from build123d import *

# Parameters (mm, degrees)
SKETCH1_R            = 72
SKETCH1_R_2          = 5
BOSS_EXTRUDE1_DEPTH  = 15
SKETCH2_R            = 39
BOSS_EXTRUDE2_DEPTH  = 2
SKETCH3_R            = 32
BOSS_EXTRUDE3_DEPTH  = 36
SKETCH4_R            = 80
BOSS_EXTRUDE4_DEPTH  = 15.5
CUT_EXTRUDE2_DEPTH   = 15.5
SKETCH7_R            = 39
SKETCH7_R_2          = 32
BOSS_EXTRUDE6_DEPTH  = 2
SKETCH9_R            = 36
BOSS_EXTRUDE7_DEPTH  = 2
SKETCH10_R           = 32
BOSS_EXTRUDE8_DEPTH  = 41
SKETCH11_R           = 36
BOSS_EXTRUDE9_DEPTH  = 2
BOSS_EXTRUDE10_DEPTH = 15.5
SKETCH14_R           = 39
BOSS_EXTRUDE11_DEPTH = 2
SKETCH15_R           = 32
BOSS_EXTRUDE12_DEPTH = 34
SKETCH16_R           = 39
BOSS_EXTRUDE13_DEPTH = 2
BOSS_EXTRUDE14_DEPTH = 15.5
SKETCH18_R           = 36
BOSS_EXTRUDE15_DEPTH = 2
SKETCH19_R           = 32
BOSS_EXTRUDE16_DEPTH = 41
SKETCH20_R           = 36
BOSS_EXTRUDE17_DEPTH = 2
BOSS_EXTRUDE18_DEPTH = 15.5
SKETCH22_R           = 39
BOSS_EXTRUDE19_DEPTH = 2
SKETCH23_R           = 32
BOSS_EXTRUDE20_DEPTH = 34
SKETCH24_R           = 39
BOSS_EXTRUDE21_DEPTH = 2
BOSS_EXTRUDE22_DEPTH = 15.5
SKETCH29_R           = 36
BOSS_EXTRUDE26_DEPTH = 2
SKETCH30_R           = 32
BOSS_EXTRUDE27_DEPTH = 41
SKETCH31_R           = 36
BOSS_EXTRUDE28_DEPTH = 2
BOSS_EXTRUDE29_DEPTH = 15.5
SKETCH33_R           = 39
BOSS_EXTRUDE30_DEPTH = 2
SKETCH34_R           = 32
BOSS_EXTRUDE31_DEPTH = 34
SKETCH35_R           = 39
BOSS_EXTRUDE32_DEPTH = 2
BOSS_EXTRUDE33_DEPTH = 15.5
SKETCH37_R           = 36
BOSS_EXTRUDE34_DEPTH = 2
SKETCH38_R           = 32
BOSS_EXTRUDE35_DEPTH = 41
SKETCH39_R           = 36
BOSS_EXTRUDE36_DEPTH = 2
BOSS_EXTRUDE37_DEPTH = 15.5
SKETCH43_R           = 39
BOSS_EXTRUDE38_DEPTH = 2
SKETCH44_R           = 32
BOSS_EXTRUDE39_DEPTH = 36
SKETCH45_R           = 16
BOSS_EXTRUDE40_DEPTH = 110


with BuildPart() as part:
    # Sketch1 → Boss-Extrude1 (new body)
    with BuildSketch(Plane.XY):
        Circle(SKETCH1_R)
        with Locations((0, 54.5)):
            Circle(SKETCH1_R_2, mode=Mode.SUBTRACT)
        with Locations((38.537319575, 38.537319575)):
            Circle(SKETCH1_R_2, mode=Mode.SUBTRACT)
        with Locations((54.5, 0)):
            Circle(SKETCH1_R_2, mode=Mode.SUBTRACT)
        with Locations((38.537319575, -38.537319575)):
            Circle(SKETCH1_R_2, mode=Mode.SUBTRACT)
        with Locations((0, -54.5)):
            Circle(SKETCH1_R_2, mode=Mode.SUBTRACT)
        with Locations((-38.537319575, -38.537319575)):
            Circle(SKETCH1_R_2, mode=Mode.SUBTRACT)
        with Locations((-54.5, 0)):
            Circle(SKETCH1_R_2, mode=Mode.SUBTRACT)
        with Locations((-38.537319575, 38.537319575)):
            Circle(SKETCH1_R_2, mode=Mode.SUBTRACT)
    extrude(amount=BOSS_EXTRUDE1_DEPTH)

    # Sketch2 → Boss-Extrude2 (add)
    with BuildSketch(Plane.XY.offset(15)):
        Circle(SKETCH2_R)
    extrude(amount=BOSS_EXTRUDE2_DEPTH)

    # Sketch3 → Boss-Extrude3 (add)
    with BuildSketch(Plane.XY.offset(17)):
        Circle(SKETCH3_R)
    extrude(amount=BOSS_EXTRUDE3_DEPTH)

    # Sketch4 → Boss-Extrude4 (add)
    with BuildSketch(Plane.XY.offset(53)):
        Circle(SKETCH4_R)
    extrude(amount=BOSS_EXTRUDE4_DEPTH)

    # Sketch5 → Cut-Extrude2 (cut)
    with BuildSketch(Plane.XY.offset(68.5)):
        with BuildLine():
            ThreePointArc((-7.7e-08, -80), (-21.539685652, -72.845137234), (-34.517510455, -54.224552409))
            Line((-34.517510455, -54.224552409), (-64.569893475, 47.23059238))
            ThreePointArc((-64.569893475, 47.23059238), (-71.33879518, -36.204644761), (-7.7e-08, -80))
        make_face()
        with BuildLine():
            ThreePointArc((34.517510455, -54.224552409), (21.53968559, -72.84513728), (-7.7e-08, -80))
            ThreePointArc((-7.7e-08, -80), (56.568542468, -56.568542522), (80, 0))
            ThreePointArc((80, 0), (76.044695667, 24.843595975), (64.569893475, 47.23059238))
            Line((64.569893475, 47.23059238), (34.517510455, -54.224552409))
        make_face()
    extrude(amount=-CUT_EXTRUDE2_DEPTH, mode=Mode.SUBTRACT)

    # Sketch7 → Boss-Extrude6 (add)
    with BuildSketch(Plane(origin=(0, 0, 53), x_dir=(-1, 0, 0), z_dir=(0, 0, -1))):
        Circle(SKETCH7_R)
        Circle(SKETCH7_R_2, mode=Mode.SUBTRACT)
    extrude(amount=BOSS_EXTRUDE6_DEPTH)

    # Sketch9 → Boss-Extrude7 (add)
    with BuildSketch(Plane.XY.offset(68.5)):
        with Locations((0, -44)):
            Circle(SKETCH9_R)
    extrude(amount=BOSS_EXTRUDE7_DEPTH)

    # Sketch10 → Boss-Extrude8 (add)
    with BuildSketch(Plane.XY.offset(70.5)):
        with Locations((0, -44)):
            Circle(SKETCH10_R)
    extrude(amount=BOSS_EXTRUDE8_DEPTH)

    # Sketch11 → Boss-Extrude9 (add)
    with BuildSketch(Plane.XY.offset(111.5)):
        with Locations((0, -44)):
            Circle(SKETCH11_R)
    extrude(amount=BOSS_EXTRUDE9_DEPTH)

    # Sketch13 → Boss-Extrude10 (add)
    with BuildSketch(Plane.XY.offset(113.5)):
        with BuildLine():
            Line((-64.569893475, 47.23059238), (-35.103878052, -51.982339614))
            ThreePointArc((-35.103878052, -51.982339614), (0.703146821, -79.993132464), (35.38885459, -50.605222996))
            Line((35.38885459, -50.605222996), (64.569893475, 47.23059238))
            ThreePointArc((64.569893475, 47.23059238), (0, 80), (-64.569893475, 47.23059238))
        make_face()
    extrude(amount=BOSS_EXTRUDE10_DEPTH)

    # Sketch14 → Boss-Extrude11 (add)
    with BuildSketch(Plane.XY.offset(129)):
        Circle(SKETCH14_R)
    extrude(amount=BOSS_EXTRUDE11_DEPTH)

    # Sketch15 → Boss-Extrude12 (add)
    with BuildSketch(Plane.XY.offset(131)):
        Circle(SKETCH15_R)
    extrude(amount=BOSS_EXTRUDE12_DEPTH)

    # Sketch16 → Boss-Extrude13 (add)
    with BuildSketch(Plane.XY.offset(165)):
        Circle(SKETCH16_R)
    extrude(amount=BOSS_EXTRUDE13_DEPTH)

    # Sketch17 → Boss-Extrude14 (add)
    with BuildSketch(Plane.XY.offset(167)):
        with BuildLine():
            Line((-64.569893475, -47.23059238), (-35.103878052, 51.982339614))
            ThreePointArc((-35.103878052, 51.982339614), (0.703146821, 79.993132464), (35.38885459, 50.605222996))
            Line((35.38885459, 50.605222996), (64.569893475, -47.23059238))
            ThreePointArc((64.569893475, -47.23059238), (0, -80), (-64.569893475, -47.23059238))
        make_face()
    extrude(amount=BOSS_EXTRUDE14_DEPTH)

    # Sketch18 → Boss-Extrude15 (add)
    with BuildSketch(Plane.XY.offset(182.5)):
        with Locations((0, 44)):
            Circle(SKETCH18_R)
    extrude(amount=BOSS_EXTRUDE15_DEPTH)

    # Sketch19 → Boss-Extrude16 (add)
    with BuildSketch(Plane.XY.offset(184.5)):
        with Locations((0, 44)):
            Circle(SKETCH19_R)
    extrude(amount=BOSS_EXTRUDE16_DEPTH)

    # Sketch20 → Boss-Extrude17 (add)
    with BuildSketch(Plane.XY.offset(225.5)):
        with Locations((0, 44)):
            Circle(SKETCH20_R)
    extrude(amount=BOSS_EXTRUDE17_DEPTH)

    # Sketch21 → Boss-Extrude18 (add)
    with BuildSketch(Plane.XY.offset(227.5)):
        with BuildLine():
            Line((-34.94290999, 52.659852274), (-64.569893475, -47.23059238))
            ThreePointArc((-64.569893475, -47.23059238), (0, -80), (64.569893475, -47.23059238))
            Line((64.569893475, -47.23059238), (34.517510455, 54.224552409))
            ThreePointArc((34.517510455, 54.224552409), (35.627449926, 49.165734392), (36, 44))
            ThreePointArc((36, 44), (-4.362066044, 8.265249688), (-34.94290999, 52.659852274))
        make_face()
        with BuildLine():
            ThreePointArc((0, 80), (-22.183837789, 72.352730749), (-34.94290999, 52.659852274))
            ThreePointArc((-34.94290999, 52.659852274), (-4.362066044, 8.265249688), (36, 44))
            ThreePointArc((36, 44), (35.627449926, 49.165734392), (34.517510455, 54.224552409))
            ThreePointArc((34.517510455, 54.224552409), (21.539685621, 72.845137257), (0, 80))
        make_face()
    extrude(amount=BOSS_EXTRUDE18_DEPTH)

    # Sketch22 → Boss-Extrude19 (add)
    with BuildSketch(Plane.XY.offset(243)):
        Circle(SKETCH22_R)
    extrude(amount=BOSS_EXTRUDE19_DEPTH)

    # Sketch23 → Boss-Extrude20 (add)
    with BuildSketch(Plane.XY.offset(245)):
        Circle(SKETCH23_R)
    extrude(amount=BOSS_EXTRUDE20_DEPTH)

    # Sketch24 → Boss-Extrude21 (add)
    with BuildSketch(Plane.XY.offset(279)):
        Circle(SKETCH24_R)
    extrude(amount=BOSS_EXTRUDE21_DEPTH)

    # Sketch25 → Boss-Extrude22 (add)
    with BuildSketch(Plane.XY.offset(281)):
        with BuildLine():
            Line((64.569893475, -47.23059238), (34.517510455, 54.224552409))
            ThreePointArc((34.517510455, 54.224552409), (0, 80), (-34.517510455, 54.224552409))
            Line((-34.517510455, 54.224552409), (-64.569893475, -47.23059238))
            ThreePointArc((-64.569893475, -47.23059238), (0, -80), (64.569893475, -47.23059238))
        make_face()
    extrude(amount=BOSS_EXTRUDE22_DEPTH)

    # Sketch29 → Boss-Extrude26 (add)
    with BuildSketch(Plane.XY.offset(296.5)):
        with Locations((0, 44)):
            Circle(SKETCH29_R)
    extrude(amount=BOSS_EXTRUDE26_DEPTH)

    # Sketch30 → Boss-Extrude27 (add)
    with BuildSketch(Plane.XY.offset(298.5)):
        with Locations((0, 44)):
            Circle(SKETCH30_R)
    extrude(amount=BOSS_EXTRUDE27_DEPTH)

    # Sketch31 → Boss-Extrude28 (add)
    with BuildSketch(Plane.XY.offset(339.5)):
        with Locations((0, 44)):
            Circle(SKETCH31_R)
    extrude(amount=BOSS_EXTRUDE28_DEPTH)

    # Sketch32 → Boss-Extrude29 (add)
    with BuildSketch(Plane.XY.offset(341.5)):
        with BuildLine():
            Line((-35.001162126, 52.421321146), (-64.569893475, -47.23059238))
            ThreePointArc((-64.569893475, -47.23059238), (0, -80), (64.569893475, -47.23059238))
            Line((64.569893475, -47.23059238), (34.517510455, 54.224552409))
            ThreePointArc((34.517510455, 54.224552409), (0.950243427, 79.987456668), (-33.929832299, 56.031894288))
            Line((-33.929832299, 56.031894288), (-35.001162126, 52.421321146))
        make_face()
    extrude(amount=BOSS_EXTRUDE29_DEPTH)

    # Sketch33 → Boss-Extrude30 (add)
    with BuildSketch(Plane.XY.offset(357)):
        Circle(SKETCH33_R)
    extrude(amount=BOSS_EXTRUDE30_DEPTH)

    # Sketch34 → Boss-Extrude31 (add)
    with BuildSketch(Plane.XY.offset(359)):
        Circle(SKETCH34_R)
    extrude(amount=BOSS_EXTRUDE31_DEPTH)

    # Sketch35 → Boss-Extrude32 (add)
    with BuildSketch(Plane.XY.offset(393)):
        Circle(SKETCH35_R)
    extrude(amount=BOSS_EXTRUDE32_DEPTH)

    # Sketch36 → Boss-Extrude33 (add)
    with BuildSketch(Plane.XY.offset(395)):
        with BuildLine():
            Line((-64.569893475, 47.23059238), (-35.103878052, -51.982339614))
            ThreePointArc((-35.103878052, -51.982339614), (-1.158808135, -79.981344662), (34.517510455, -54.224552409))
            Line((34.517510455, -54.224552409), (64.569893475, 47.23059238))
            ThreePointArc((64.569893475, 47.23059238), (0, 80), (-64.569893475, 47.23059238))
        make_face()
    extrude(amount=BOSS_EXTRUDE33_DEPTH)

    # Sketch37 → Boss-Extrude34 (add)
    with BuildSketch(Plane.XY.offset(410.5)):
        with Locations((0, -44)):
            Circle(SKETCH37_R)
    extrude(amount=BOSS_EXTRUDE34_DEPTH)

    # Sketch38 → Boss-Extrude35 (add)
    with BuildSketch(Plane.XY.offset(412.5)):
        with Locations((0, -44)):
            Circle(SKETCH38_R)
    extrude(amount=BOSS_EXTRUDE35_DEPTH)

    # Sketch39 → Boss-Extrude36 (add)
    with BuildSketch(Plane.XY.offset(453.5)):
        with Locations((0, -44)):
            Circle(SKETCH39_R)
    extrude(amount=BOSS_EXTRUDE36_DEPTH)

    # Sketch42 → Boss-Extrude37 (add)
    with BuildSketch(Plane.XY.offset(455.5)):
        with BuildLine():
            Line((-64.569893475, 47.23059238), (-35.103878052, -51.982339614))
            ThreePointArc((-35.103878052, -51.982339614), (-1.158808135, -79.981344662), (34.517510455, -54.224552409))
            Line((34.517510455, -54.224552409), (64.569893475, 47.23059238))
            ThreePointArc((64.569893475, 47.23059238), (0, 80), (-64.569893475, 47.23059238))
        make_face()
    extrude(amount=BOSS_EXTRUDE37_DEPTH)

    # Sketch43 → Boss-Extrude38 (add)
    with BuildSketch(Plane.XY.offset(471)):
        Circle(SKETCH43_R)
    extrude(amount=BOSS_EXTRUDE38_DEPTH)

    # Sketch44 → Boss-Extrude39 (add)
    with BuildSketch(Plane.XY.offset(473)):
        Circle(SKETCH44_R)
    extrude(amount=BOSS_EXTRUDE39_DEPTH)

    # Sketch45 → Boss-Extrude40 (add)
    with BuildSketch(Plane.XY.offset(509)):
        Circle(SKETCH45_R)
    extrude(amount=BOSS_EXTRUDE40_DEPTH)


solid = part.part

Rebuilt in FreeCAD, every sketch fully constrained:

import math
import FreeCAD as App
import Part
import Sketcher

V = App.Vector
Q = App.Units.Quantity

doc = App.newDocument("Part")
body = doc.addObject("PartDesign::Body", "Body")

sketch1 = doc.addObject("Sketcher::SketchObject", "Sketch")
body.addObject(sketch1)
sketch1.AttachmentSupport = (doc.XY_Plane, [""])
sketch1.MapMode = "FlatFace"
sketch1.addGeometry([
    Part.Circle(V(0, 0, 0), V(0, 0, 1), 72),
    Part.Circle(V(-39, -39, 0), V(0, 0, 1), 5),
    Part.Circle(V(0, -54, 0), V(0, 0, 1), 5),
    Part.Circle(V(39, -39, 0), V(0, 0, 1), 5),
    Part.Circle(V(-54, 0, 0), V(0, 0, 1), 5),
    Part.Circle(V(-39, 39, 0), V(0, 0, 1), 5),
    Part.Circle(V(54, 0, 0), V(0, 0, 1), 5),
    Part.Circle(V(0, 54, 0), V(0, 0, 1), 5),
    Part.Circle(V(39, 39, 0), V(0, 0, 1), 5),
], False)
sketch1.addConstraint([
    Sketcher.Constraint("Coincident", 0, 3, -1, 1),
    Sketcher.Constraint("Equal", 1, 2),
    Sketcher.Constraint("Equal", 2, 3),
    Sketcher.Constraint("Equal", 3, 4),
    Sketcher.Constraint("Equal", 4, 5),
    Sketcher.Constraint("Equal", 5, 6),
    Sketcher.Constraint("Equal", 6, 7),
    Sketcher.Constraint("Equal", 7, 8),
    Sketcher.Constraint("Symmetric", 3, 3, 5, 3, -1, 1),
    Sketcher.Constraint("Symmetric", 4, 3, 6, 3, -1, 1),
    Sketcher.Constraint("Symmetric", 2, 3, 7, 3, -1, 1),
    Sketcher.Constraint("Symmetric", 1, 3, 8, 3, -1, 1),
    Sketcher.Constraint("Symmetric", 1, 3, 3, 3, -2),
    Sketcher.Constraint("PointOnObject", 2, 3, -2),
    Sketcher.Constraint("PointOnObject", 4, 3, -1),
    Sketcher.Constraint("Diameter", 0, 144.0),
    Sketcher.Constraint("Diameter", 1, 10.0),
    Sketcher.Constraint("DistanceY", 2, 3, -1, 1, 54.5),
    Sketcher.Constraint("DistanceX", 4, 3, -1, 1, 54.5),
    Sketcher.Constraint("DistanceX", 1, 3, -1, 1, 38.53732),
    Sketcher.Constraint("DistanceY", 1, 3, -1, 1, 38.53732),
])
pad1 = doc.addObject("PartDesign::Pad", "Pad")
body.addObject(pad1)
pad1.Profile = sketch1
pad1.Length = 15

sketch2 = doc.addObject("Sketcher::SketchObject", "Sketch001")
body.addObject(sketch2)
sketch2.AttachmentSupport = (doc.XY_Plane, [""])
sketch2.MapMode = "FlatFace"
sketch2.AttachmentOffset = App.Placement(V(0, 0, 15), App.Rotation())
sketch2.addGeometry(Part.Circle(V(0, 0, 0), V(0, 0, 1), 39), False)
sketch2.addConstraint([
    Sketcher.Constraint("Coincident", 0, 3, -1, 1),
    Sketcher.Constraint("Diameter", 0, 78.0),
])
pad2 = doc.addObject("PartDesign::Pad", "Pad001")
body.addObject(pad2)
pad2.Profile = sketch2
pad2.Length = 2

sketch3 = doc.addObject("Sketcher::SketchObject", "Sketch002")
body.addObject(sketch3)
sketch3.AttachmentSupport = (doc.XY_Plane, [""])
sketch3.MapMode = "FlatFace"
sketch3.AttachmentOffset = App.Placement(V(0, 0, 17), App.Rotation())
sketch3.addGeometry(Part.Circle(V(0, 0, 0), V(0, 0, 1), 32), False)
sketch3.addConstraint([
    Sketcher.Constraint("Coincident", 0, 3, -1, 1),
    Sketcher.Constraint("Diameter", 0, 64.0),
])
pad3 = doc.addObject("PartDesign::Pad", "Pad002")
body.addObject(pad3)
pad3.Profile = sketch3
pad3.Length = 36

sketch4 = doc.addObject("Sketcher::SketchObject", "Sketch003")
body.addObject(sketch4)
sketch4.AttachmentSupport = (doc.XY_Plane, [""])
sketch4.MapMode = "FlatFace"
sketch4.AttachmentOffset = App.Placement(V(0, 0, 53), App.Rotation())
sketch4.addGeometry(Part.Circle(V(0, 0, 0), V(0, 0, 1), 80), False)
sketch4.addConstraint([
    Sketcher.Constraint("Coincident", 0, 3, -1, 1),
    Sketcher.Constraint("Diameter", 0, 160.0),
])
pad4 = doc.addObject("PartDesign::Pad", "Pad003")
body.addObject(pad4)
pad4.Profile = sketch4
pad4.Length = 15.5

sketch5 = doc.addObject("Sketcher::SketchObject", "Sketch004")
body.addObject(sketch5)
sketch5.AttachmentSupport = (doc.XY_Plane, [""])
sketch5.MapMode = "FlatFace"
sketch5.AttachmentOffset = App.Placement(V(0, 0, 68.5), App.Rotation())
sketch5.addGeometry([
    Part.ArcOfCircle(Part.Circle(V(0, -44, 0), V(0, 0, 1), 36), math.radians(-164), math.radians(-90)),
    Part.LineSegment(V(-35, -54, 0), V(-65, 47, 0)),
    Part.ArcOfCircle(Part.Circle(V(0, 0, 0), V(0, 0, 1), 80), math.radians(144), math.radians(270)),
    Part.ArcOfCircle(Part.Circle(V(0, -44, 0), V(0, 0, 1), 36), math.radians(-90), math.radians(-16)),
    Part.ArcOfCircle(Part.Circle(V(0, 0, 0), V(0, 0, 1), 80), math.radians(-90), math.radians(0)),
    Part.ArcOfCircle(Part.Circle(V(0, 0, 0), V(0, 0, 1), 80), math.radians(0), math.radians(36)),
    Part.LineSegment(V(65, 47, 0), V(35, -54, 0)),
], False)
sketch5.addConstraint([
    Sketcher.Constraint("Tangent", 0, 1, 1, 1),
    Sketcher.Constraint("Coincident", 1, 2, 2, 1),
    Sketcher.Constraint("Tangent", 2, 2, 0, 2),
    Sketcher.Constraint("Tangent", 3, 1, 4, 1),
    Sketcher.Constraint("Tangent", 4, 2, 5, 1),
    Sketcher.Constraint("Coincident", 5, 2, 6, 1),
    Sketcher.Constraint("Tangent", 6, 2, 3, 2),
    Sketcher.Constraint("Coincident", 2, 3, -1, 1),
    Sketcher.Constraint("Coincident", 4, 3, -1, 1),
    Sketcher.Constraint("Coincident", 3, 3, 0, 3),
    Sketcher.Constraint("Equal", 0, 3),
    Sketcher.Constraint("Equal", 4, 5),
    Sketcher.Constraint("Symmetric", 0, 1, 6, 2, -2),
    Sketcher.Constraint("PointOnObject", 4, 2, -1),
    Sketcher.Constraint("Radius", 0, 36.0),
    Sketcher.Constraint("Radius", 2, 80.0),
    Sketcher.Constraint("Angle", 1, Q("106.5 deg")),
])
pocket1 = doc.addObject("PartDesign::Pocket", "Pocket")
body.addObject(pocket1)
pocket1.Profile = sketch5
pocket1.Length = 15.5

sketch6 = doc.addObject("Sketcher::SketchObject", "Sketch005")
body.addObject(sketch6)
sketch6.AttachmentSupport = (doc.XY_Plane, [""])
sketch6.MapMode = "FlatFace"
sketch6.AttachmentOffset = App.Placement(V(0, 0, 53), App.Rotation())
sketch6.addGeometry([
    Part.Circle(V(0, 0, 0), V(0, 0, 1), 39),
    Part.Circle(V(0, 0, 0), V(0, 0, 1), 32),
], False)
sketch6.addConstraint([
    Sketcher.Constraint("Coincident", 0, 3, -1, 1),
    Sketcher.Constraint("Coincident", 1, 3, -1, 1),
    Sketcher.Constraint("Diameter", 0, 78.0),
    Sketcher.Constraint("Diameter", 1, 64.0),
])
pad5 = doc.addObject("PartDesign::Pad", "Pad004")
body.addObject(pad5)
pad5.Profile = sketch6
pad5.Length = 2
pad5.Reversed = True

sketch7 = doc.addObject("Sketcher::SketchObject", "Sketch006")
body.addObject(sketch7)
sketch7.AttachmentSupport = (doc.XY_Plane, [""])
sketch7.MapMode = "FlatFace"
sketch7.AttachmentOffset = App.Placement(V(0, 0, 68.5), App.Rotation())
sketch7.addGeometry(Part.Circle(V(0, -44, 0), V(0, 0, 1), 36), False)
sketch7.addConstraint([
    Sketcher.Constraint("PointOnObject", 0, 3, -2),
    Sketcher.Constraint("Diameter", 0, 72.0),
    Sketcher.Constraint("DistanceY", 0, 3, -1, 1, 44.0),
])
pad6 = doc.addObject("PartDesign::Pad", "Pad005")
body.addObject(pad6)
pad6.Profile = sketch7
pad6.Length = 2

sketch8 = doc.addObject("Sketcher::SketchObject", "Sketch007")
body.addObject(sketch8)
sketch8.AttachmentSupport = (doc.XY_Plane, [""])
sketch8.MapMode = "FlatFace"
sketch8.AttachmentOffset = App.Placement(V(0, 0, 70.5), App.Rotation())
sketch8.addGeometry(Part.Circle(V(0, -44, 0), V(0, 0, 1), 32), False)
sketch8.addConstraint([
    Sketcher.Constraint("PointOnObject", 0, 3, -2),
    Sketcher.Constraint("Diameter", 0, 64.0),
    Sketcher.Constraint("DistanceY", 0, 3, -1, 1, 44.0),
])
pad7 = doc.addObject("PartDesign::Pad", "Pad006")
body.addObject(pad7)
pad7.Profile = sketch8
pad7.Length = 41

sketch9 = doc.addObject("Sketcher::SketchObject", "Sketch008")
body.addObject(sketch9)
sketch9.AttachmentSupport = (doc.XY_Plane, [""])
sketch9.MapMode = "FlatFace"
sketch9.AttachmentOffset = App.Placement(V(0, 0, 111.5), App.Rotation())
sketch9.addGeometry(Part.Circle(V(0, -44, 0), V(0, 0, 1), 36), False)
sketch9.addConstraint([
    Sketcher.Constraint("PointOnObject", 0, 3, -2),
    Sketcher.Constraint("Diameter", 0, 72.0),
    Sketcher.Constraint("DistanceY", 0, 3, -1, 1, 44.0),
])
pad8 = doc.addObject("PartDesign::Pad", "Pad007")
body.addObject(pad8)
pad8.Profile = sketch9
pad8.Length = 2

sketch10 = doc.addObject("Sketcher::SketchObject", "Sketch009")
body.addObject(sketch10)
sketch10.AttachmentSupport = (doc.XY_Plane, [""])
sketch10.MapMode = "FlatFace"
sketch10.AttachmentOffset = App.Placement(V(0, 0, 113.5), App.Rotation())
sketch10.addGeometry([
    Part.LineSegment(V(-65, 47, 0), V(-35, -52, 0)),
    Part.ArcOfCircle(Part.Circle(V(0, -44, 0), V(0, 0, 1), 36), math.radians(-167), math.radians(-11)),
    Part.LineSegment(V(35, -51, 0), V(65, 47, 0)),
    Part.ArcOfCircle(Part.Circle(V(0, 0, 0), V(0, 0, 1), 80), math.radians(36), math.radians(144)),
], False)
sketch10.addConstraint([
    Sketcher.Constraint("Coincident", 0, 2, 1, 1),
    Sketcher.Constraint("Coincident", 1, 2, 2, 1),
    Sketcher.Constraint("Coincident", 2, 2, 3, 1),
    Sketcher.Constraint("Coincident", 3, 2, 0, 1),
    Sketcher.Constraint("Coincident", 3, 3, -1, 1),
    Sketcher.Constraint("PointOnObject", 1, 3, -2),
    Sketcher.Constraint("Horizontal", 2, 2, 3, 2),
    Sketcher.Constraint("Radius", 1, 36.0),
    Sketcher.Constraint("Radius", 3, 80.0),
    Sketcher.Constraint("DistanceY", 1, 3, -1, 1, 44.0),
    Sketcher.Constraint("DistanceX", 0, 2, -1, 1, 35.103878),
    Sketcher.Constraint("DistanceX", 1, 2, 2, 2, 29.181039),
    Sketcher.Constraint("DistanceX", 0, 2, 2, 2, 99.673772),
])
pad9 = doc.addObject("PartDesign::Pad", "Pad008")
body.addObject(pad9)
pad9.Profile = sketch10
pad9.Length = 15.5

sketch11 = doc.addObject("Sketcher::SketchObject", "Sketch010")
body.addObject(sketch11)
sketch11.AttachmentSupport = (doc.XY_Plane, [""])
sketch11.MapMode = "FlatFace"
sketch11.AttachmentOffset = App.Placement(V(0, 0, 129), App.Rotation())
sketch11.addGeometry(Part.Circle(V(0, 0, 0), V(0, 0, 1), 39), False)
sketch11.addConstraint([
    Sketcher.Constraint("Coincident", 0, 3, -1, 1),
    Sketcher.Constraint("Diameter", 0, 78.0),
])
pad10 = doc.addObject("PartDesign::Pad", "Pad009")
body.addObject(pad10)
pad10.Profile = sketch11
pad10.Length = 2

sketch12 = doc.addObject("Sketcher::SketchObject", "Sketch011")
body.addObject(sketch12)
sketch12.AttachmentSupport = (doc.XY_Plane, [""])
sketch12.MapMode = "FlatFace"
sketch12.AttachmentOffset = App.Placement(V(0, 0, 131), App.Rotation())
sketch12.addGeometry(Part.Circle(V(0, 0, 0), V(0, 0, 1), 32), False)
sketch12.addConstraint([
    Sketcher.Constraint("Coincident", 0, 3, -1, 1),
    Sketcher.Constraint("Diameter", 0, 64.0),
])
pad11 = doc.addObject("PartDesign::Pad", "Pad010")
body.addObject(pad11)
pad11.Profile = sketch12
pad11.Length = 34

sketch13 = doc.addObject("Sketcher::SketchObject", "Sketch012")
body.addObject(sketch13)
sketch13.AttachmentSupport = (doc.XY_Plane, [""])
sketch13.MapMode = "FlatFace"
sketch13.AttachmentOffset = App.Placement(V(0, 0, 165), App.Rotation())
sketch13.addGeometry(Part.Circle(V(0, 0, 0), V(0, 0, 1), 39), False)
sketch13.addConstraint([
    Sketcher.Constraint("Coincident", 0, 3, -1, 1),
    Sketcher.Constraint("Diameter", 0, 78.0),
])
pad12 = doc.addObject("PartDesign::Pad", "Pad011")
body.addObject(pad12)
pad12.Profile = sketch13
pad12.Length = 2

sketch14 = doc.addObject("Sketcher::SketchObject", "Sketch013")
body.addObject(sketch14)
sketch14.AttachmentSupport = (doc.XY_Plane, [""])
sketch14.MapMode = "FlatFace"
sketch14.AttachmentOffset = App.Placement(V(0, 0, 167), App.Rotation())
sketch14.addGeometry([
    Part.LineSegment(V(-35, 52, 0), V(-65, -47, 0)),
    Part.ArcOfCircle(Part.Circle(V(0, 0, 0), V(0, 0, 1), 80), math.radians(-144), math.radians(-36)),
    Part.LineSegment(V(65, -47, 0), V(35, 51, 0)),
    Part.ArcOfCircle(Part.Circle(V(0, 44, 0), V(0, 0, 1), 36), math.radians(11), math.radians(167)),
], False)
sketch14.addConstraint([
    Sketcher.Constraint("Coincident", 0, 2, 1, 1),
    Sketcher.Constraint("Coincident", 1, 2, 2, 1),
    Sketcher.Constraint("Coincident", 2, 2, 3, 1),
    Sketcher.Constraint("Coincident", 3, 2, 0, 1),
    Sketcher.Constraint("Coincident", 1, 3, -1, 1),
    Sketcher.Constraint("PointOnObject", 3, 3, -2),
    Sketcher.Constraint("Horizontal", 0, 2, 1, 2),
    Sketcher.Constraint("Radius", 1, 80.0),
    Sketcher.Constraint("Radius", 3, 36.0),
    Sketcher.Constraint("DistanceY", -1, 1, 3, 3, 44.0),
    Sketcher.Constraint("DistanceX", 3, 2, -1, 1, 35.103878),
    Sketcher.Constraint("DistanceX", 2, 2, 1, 2, 29.181039),
    Sketcher.Constraint("DistanceX", 0, 2, 2, 2, 99.958748),
])
pad13 = doc.addObject("PartDesign::Pad", "Pad012")
body.addObject(pad13)
pad13.Profile = sketch14
pad13.Length = 15.5

sketch15 = doc.addObject("Sketcher::SketchObject", "Sketch014")
body.addObject(sketch15)
sketch15.AttachmentSupport = (doc.XY_Plane, [""])
sketch15.MapMode = "FlatFace"
sketch15.AttachmentOffset = App.Placement(V(0, 0, 182.5), App.Rotation())
sketch15.addGeometry(Part.Circle(V(0, 44, 0), V(0, 0, 1), 36), False)
sketch15.addConstraint([
    Sketcher.Constraint("PointOnObject", 0, 3, -2),
    Sketcher.Constraint("Diameter", 0, 72.0),
    Sketcher.Constraint("DistanceY", -1, 1, 0, 3, 44.0),
])
pad14 = doc.addObject("PartDesign::Pad", "Pad013")
body.addObject(pad14)
pad14.Profile = sketch15
pad14.Length = 2

sketch16 = doc.addObject("Sketcher::SketchObject", "Sketch015")
body.addObject(sketch16)
sketch16.AttachmentSupport = (doc.XY_Plane, [""])
sketch16.MapMode = "FlatFace"
sketch16.AttachmentOffset = App.Placement(V(0, 0, 184.5), App.Rotation())
sketch16.addGeometry(Part.Circle(V(0, 44, 0), V(0, 0, 1), 32), False)
sketch16.addConstraint([
    Sketcher.Constraint("PointOnObject", 0, 3, -2),
    Sketcher.Constraint("Diameter", 0, 64.0),
    Sketcher.Constraint("DistanceY", -1, 1, 0, 3, 44.0),
])
pad15 = doc.addObject("PartDesign::Pad", "Pad014")
body.addObject(pad15)
pad15.Profile = sketch16
pad15.Length = 41

sketch17 = doc.addObject("Sketcher::SketchObject", "Sketch016")
body.addObject(sketch17)
sketch17.AttachmentSupport = (doc.XY_Plane, [""])
sketch17.MapMode = "FlatFace"
sketch17.AttachmentOffset = App.Placement(V(0, 0, 225.5), App.Rotation())
sketch17.addGeometry(Part.Circle(V(0, 44, 0), V(0, 0, 1), 36), False)
sketch17.addConstraint([
    Sketcher.Constraint("PointOnObject", 0, 3, -2),
    Sketcher.Constraint("Diameter", 0, 72.0),
    Sketcher.Constraint("DistanceY", -1, 1, 0, 3, 44.0),
])
pad16 = doc.addObject("PartDesign::Pad", "Pad015")
body.addObject(pad16)
pad16.Profile = sketch17
pad16.Length = 2

sketch18 = doc.addObject("Sketcher::SketchObject", "Sketch017")
body.addObject(sketch18)
sketch18.AttachmentSupport = (doc.XY_Plane, [""])
sketch18.MapMode = "FlatFace"
sketch18.AttachmentOffset = App.Placement(V(0, 0, 227.5), App.Rotation())
sketch18.addGeometry([
    Part.LineSegment(V(-35, 53, 0), V(-65, -47, 0)),
    Part.ArcOfCircle(Part.Circle(V(0, 0, 0), V(0, 0, 1), 80), math.radians(-144), math.radians(-36)),
    Part.LineSegment(V(65, -47, 0), V(35, 54, 0)),
    Part.ArcOfCircle(Part.Circle(V(0, 44, 0), V(0, 0, 1), 36), math.radians(16), math.radians(90)),
    Part.ArcOfCircle(Part.Circle(V(0, 44, 0), V(0, 0, 1), 36), math.radians(90), math.radians(166)),
], False)
sketch18.addConstraint([
    Sketcher.Constraint("Coincident", 0, 2, 1, 1),
    Sketcher.Constraint("Coincident", 1, 2, 2, 1),
    Sketcher.Constraint("Tangent", 2, 2, 3, 1),
    Sketcher.Constraint("Tangent", 3, 2, 4, 1),
    Sketcher.Constraint("Coincident", 4, 2, 0, 1),
    Sketcher.Constraint("Coincident", 1, 3, -1, 1),
    Sketcher.Constraint("Equal", 3, 4),
    Sketcher.Constraint("PointOnObject", 3, 3, -2),
    Sketcher.Constraint("PointOnObject", 3, 2, -2),
    Sketcher.Constraint("Horizontal", 0, 2, 1, 2),
    Sketcher.Constraint("Radius", 1, 80.0),
    Sketcher.Constraint("Radius", 3, 36.0),
    Sketcher.Constraint("DistanceY", -1, 1, 3, 3, 44.0),
    Sketcher.Constraint("Angle", 2, Q("106.5 deg")),
    Sketcher.Constraint("DistanceY", 4, 2, 2, 2, 1.5647),
])
pad17 = doc.addObject("PartDesign::Pad", "Pad016")
body.addObject(pad17)
pad17.Profile = sketch18
pad17.Length = 15.5

sketch19 = doc.addObject("Sketcher::SketchObject", "Sketch018")
body.addObject(sketch19)
sketch19.AttachmentSupport = (doc.XY_Plane, [""])
sketch19.MapMode = "FlatFace"
sketch19.AttachmentOffset = App.Placement(V(0, 0, 243), App.Rotation())
sketch19.addGeometry(Part.Circle(V(0, 0, 0), V(0, 0, 1), 39), False)
sketch19.addConstraint([
    Sketcher.Constraint("Coincident", 0, 3, -1, 1),
    Sketcher.Constraint("Diameter", 0, 78.0),
])
pad18 = doc.addObject("PartDesign::Pad", "Pad017")
body.addObject(pad18)
pad18.Profile = sketch19
pad18.Length = 2

sketch20 = doc.addObject("Sketcher::SketchObject", "Sketch019")
body.addObject(sketch20)
sketch20.AttachmentSupport = (doc.XY_Plane, [""])
sketch20.MapMode = "FlatFace"
sketch20.AttachmentOffset = App.Placement(V(0, 0, 245), App.Rotation())
sketch20.addGeometry(Part.Circle(V(0, 0, 0), V(0, 0, 1), 32), False)
sketch20.addConstraint([
    Sketcher.Constraint("Coincident", 0, 3, -1, 1),
    Sketcher.Constraint("Diameter", 0, 64.0),
])
pad19 = doc.addObject("PartDesign::Pad", "Pad018")
body.addObject(pad19)
pad19.Profile = sketch20
pad19.Length = 34

sketch21 = doc.addObject("Sketcher::SketchObject", "Sketch020")
body.addObject(sketch21)
sketch21.AttachmentSupport = (doc.XY_Plane, [""])
sketch21.MapMode = "FlatFace"
sketch21.AttachmentOffset = App.Placement(V(0, 0, 279), App.Rotation())
sketch21.addGeometry(Part.Circle(V(0, 0, 0), V(0, 0, 1), 39), False)
sketch21.addConstraint([
    Sketcher.Constraint("Coincident", 0, 3, -1, 1),
    Sketcher.Constraint("Diameter", 0, 78.0),
])
pad20 = doc.addObject("PartDesign::Pad", "Pad019")
body.addObject(pad20)
pad20.Profile = sketch21
pad20.Length = 2

sketch22 = doc.addObject("Sketcher::SketchObject", "Sketch021")
body.addObject(sketch22)
sketch22.AttachmentSupport = (doc.XY_Plane, [""])
sketch22.MapMode = "FlatFace"
sketch22.AttachmentOffset = App.Placement(V(0, 0, 281), App.Rotation())
sketch22.addGeometry([
    Part.LineSegment(V(65, -47, 0), V(35, 54, 0)),
    Part.ArcOfCircle(Part.Circle(V(0, 44, 0), V(0, 0, 1), 36), math.radians(16), math.radians(164)),
    Part.LineSegment(V(-35, 54, 0), V(-65, -47, 0)),
    Part.ArcOfCircle(Part.Circle(V(0, 0, 0), V(0, 0, 1), 80), math.radians(-144), math.radians(-36)),
], False)
sketch22.addConstraint([
    Sketcher.Constraint("Tangent", 0, 2, 1, 1),
    Sketcher.Constraint("Tangent", 1, 2, 2, 1),
    Sketcher.Constraint("Coincident", 2, 2, 3, 1),
    Sketcher.Constraint("Coincident", 3, 2, 0, 1),
    Sketcher.Constraint("Coincident", 3, 3, -1, 1),
    Sketcher.Constraint("Symmetric", 0, 2, 1, 2, -2),
    Sketcher.Constraint("Radius", 1, 36.0),
    Sketcher.Constraint("Radius", 3, 80.0),
    Sketcher.Constraint("DistanceY", -1, 1, 1, 3, 44.0),
    Sketcher.Constraint("Angle", 0, Q("106.5 deg")),
])
pad21 = doc.addObject("PartDesign::Pad", "Pad020")
body.addObject(pad21)
pad21.Profile = sketch22
pad21.Length = 15.5

sketch23 = doc.addObject("Sketcher::SketchObject", "Sketch022")
body.addObject(sketch23)
sketch23.AttachmentSupport = (doc.XY_Plane, [""])
sketch23.MapMode = "FlatFace"
sketch23.AttachmentOffset = App.Placement(V(0, 0, 296.5), App.Rotation())
sketch23.addGeometry(Part.Circle(V(0, 44, 0), V(0, 0, 1), 36), False)
sketch23.addConstraint([
    Sketcher.Constraint("PointOnObject", 0, 3, -2),
    Sketcher.Constraint("Diameter", 0, 72.0),
    Sketcher.Constraint("DistanceY", -1, 1, 0, 3, 44.0),
])
pad22 = doc.addObject("PartDesign::Pad", "Pad021")
body.addObject(pad22)
pad22.Profile = sketch23
pad22.Length = 2

sketch24 = doc.addObject("Sketcher::SketchObject", "Sketch023")
body.addObject(sketch24)
sketch24.AttachmentSupport = (doc.XY_Plane, [""])
sketch24.MapMode = "FlatFace"
sketch24.AttachmentOffset = App.Placement(V(0, 0, 298.5), App.Rotation())
sketch24.addGeometry(Part.Circle(V(0, 44, 0), V(0, 0, 1), 32), False)
sketch24.addConstraint([
    Sketcher.Constraint("PointOnObject", 0, 3, -2),
    Sketcher.Constraint("Diameter", 0, 64.0),
    Sketcher.Constraint("DistanceY", -1, 1, 0, 3, 44.0),
])
pad23 = doc.addObject("PartDesign::Pad", "Pad022")
body.addObject(pad23)
pad23.Profile = sketch24
pad23.Length = 41

sketch25 = doc.addObject("Sketcher::SketchObject", "Sketch024")
body.addObject(sketch25)
sketch25.AttachmentSupport = (doc.XY_Plane, [""])
sketch25.MapMode = "FlatFace"
sketch25.AttachmentOffset = App.Placement(V(0, 0, 339.5), App.Rotation())
sketch25.addGeometry(Part.Circle(V(0, 44, 0), V(0, 0, 1), 36), False)
sketch25.addConstraint([
    Sketcher.Constraint("PointOnObject", 0, 3, -2),
    Sketcher.Constraint("Diameter", 0, 72.0),
    Sketcher.Constraint("DistanceY", -1, 1, 0, 3, 44.0),
])
pad24 = doc.addObject("PartDesign::Pad", "Pad023")
body.addObject(pad24)
pad24.Profile = sketch25
pad24.Length = 2

sketch26 = doc.addObject("Sketcher::SketchObject", "Sketch025")
body.addObject(sketch26)
sketch26.AttachmentSupport = (doc.XY_Plane, [""])
sketch26.MapMode = "FlatFace"
sketch26.AttachmentOffset = App.Placement(V(0, 0, 341.5), App.Rotation())
sketch26.addGeometry([
    Part.LineSegment(V(-35, 52.4, 0), V(-64.6, -47.2, 0)),
    Part.ArcOfCircle(Part.Circle(V(0, 0, 0), V(0, 0, 1), 80), math.radians(-144), math.radians(-36)),
    Part.LineSegment(V(64.6, -47.2, 0), V(34.5, 54.2, 0)),
    Part.ArcOfCircle(Part.Circle(V(0, 44, 0), V(0, 0, 1), 36), math.radians(16), math.radians(160)),
    Part.LineSegment(V(-33.9, 56, 0), V(-35, 52.4, 0)),
], False)
sketch26.addConstraint([
    Sketcher.Constraint("Coincident", 0, 2, 1, 1),
    Sketcher.Constraint("Coincident", 1, 2, 2, 1),
    Sketcher.Constraint("Tangent", 2, 2, 3, 1),
    Sketcher.Constraint("Coincident", 3, 2, 4, 1),
    Sketcher.Constraint("Coincident", 4, 2, 0, 1),
    Sketcher.Constraint("Coincident", 1, 3, -1, 1),
    Sketcher.Constraint("PointOnObject", 3, 3, -2),
    Sketcher.Constraint("Parallel", 0, 4),
    Sketcher.Constraint("Horizontal", 0, 2, 1, 2),
    Sketcher.Constraint("Radius", 1, 80.0),
    Sketcher.Constraint("Radius", 3, 36.0),
    Sketcher.Constraint("DistanceY", -1, 1, 3, 3, 44.0),
    Sketcher.Constraint("Angle", 2, Q("106.5 deg")),
    Sketcher.Constraint("DistanceY", -1, 1, 4, 2, 52.421321),
    Sketcher.Constraint("DistanceY", 2, 2, 3, 2, 1.807342),
])
pad25 = doc.addObject("PartDesign::Pad", "Pad024")
body.addObject(pad25)
pad25.Profile = sketch26
pad25.Length = 15.5

sketch27 = doc.addObject("Sketcher::SketchObject", "Sketch026")
body.addObject(sketch27)
sketch27.AttachmentSupport = (doc.XY_Plane, [""])
sketch27.MapMode = "FlatFace"
sketch27.AttachmentOffset = App.Placement(V(0, 0, 357), App.Rotation())
sketch27.addGeometry(Part.Circle(V(0, 0, 0), V(0, 0, 1), 39), False)
sketch27.addConstraint([
    Sketcher.Constraint("Coincident", 0, 3, -1, 1),
    Sketcher.Constraint("Diameter", 0, 78.0),
])
pad26 = doc.addObject("PartDesign::Pad", "Pad025")
body.addObject(pad26)
pad26.Profile = sketch27
pad26.Length = 2

sketch28 = doc.addObject("Sketcher::SketchObject", "Sketch027")
body.addObject(sketch28)
sketch28.AttachmentSupport = (doc.XY_Plane, [""])
sketch28.MapMode = "FlatFace"
sketch28.AttachmentOffset = App.Placement(V(0, 0, 359), App.Rotation())
sketch28.addGeometry(Part.Circle(V(0, 0, 0), V(0, 0, 1), 32), False)
sketch28.addConstraint([
    Sketcher.Constraint("Coincident", 0, 3, -1, 1),
    Sketcher.Constraint("Diameter", 0, 64.0),
])
pad27 = doc.addObject("PartDesign::Pad", "Pad026")
body.addObject(pad27)
pad27.Profile = sketch28
pad27.Length = 34

sketch29 = doc.addObject("Sketcher::SketchObject", "Sketch028")
body.addObject(sketch29)
sketch29.AttachmentSupport = (doc.XY_Plane, [""])
sketch29.MapMode = "FlatFace"
sketch29.AttachmentOffset = App.Placement(V(0, 0, 393), App.Rotation())
sketch29.addGeometry(Part.Circle(V(0, 0, 0), V(0, 0, 1), 39), False)
sketch29.addConstraint([
    Sketcher.Constraint("Coincident", 0, 3, -1, 1),
    Sketcher.Constraint("Diameter", 0, 78.0),
])
pad28 = doc.addObject("PartDesign::Pad", "Pad027")
body.addObject(pad28)
pad28.Profile = sketch29
pad28.Length = 2

sketch30 = doc.addObject("Sketcher::SketchObject", "Sketch029")
body.addObject(sketch30)
sketch30.AttachmentSupport = (doc.XY_Plane, [""])
sketch30.MapMode = "FlatFace"
sketch30.AttachmentOffset = App.Placement(V(0, 0, 395), App.Rotation())
sketch30.addGeometry([
    Part.LineSegment(V(-65, 47, 0), V(-35, -52, 0)),
    Part.ArcOfCircle(Part.Circle(V(0, -44, 0), V(0, 0, 1), 36), math.radians(-167), math.radians(-16)),
    Part.LineSegment(V(35, -54, 0), V(65, 47, 0)),
    Part.ArcOfCircle(Part.Circle(V(0, 0, 0), V(0, 0, 1), 80), math.radians(36), math.radians(144)),
], False)
sketch30.addConstraint([
    Sketcher.Constraint("Coincident", 0, 2, 1, 1),
    Sketcher.Constraint("Tangent", 1, 2, 2, 1),
    Sketcher.Constraint("Coincident", 2, 2, 3, 1),
    Sketcher.Constraint("Coincident", 3, 2, 0, 1),
    Sketcher.Constraint("Coincident", 3, 3, -1, 1),
    Sketcher.Constraint("PointOnObject", 1, 3, -2),
    Sketcher.Constraint("Horizontal", 2, 2, 3, 2),
    Sketcher.Constraint("Radius", 1, 36.0),
    Sketcher.Constraint("Radius", 3, 80.0),
    Sketcher.Constraint("DistanceY", 1, 3, -1, 1, 44.0),
    Sketcher.Constraint("Angle", 2, Q("73.5 deg")),
    Sketcher.Constraint("DistanceX", 0, 2, -1, 1, 35.103878),
])
pad29 = doc.addObject("PartDesign::Pad", "Pad028")
body.addObject(pad29)
pad29.Profile = sketch30
pad29.Length = 15.5

sketch31 = doc.addObject("Sketcher::SketchObject", "Sketch030")
body.addObject(sketch31)
sketch31.AttachmentSupport = (doc.XY_Plane, [""])
sketch31.MapMode = "FlatFace"
sketch31.AttachmentOffset = App.Placement(V(0, 0, 410.5), App.Rotation())
sketch31.addGeometry(Part.Circle(V(0, -44, 0), V(0, 0, 1), 36), False)
sketch31.addConstraint([
    Sketcher.Constraint("PointOnObject", 0, 3, -2),
    Sketcher.Constraint("Diameter", 0, 72.0),
    Sketcher.Constraint("DistanceY", 0, 3, -1, 1, 44.0),
])
pad30 = doc.addObject("PartDesign::Pad", "Pad029")
body.addObject(pad30)
pad30.Profile = sketch31
pad30.Length = 2

sketch32 = doc.addObject("Sketcher::SketchObject", "Sketch031")
body.addObject(sketch32)
sketch32.AttachmentSupport = (doc.XY_Plane, [""])
sketch32.MapMode = "FlatFace"
sketch32.AttachmentOffset = App.Placement(V(0, 0, 412.5), App.Rotation())
sketch32.addGeometry(Part.Circle(V(0, -44, 0), V(0, 0, 1), 32), False)
sketch32.addConstraint([
    Sketcher.Constraint("PointOnObject", 0, 3, -2),
    Sketcher.Constraint("Diameter", 0, 64.0),
    Sketcher.Constraint("DistanceY", 0, 3, -1, 1, 44.0),
])
pad31 = doc.addObject("PartDesign::Pad", "Pad030")
body.addObject(pad31)
pad31.Profile = sketch32
pad31.Length = 41

sketch33 = doc.addObject("Sketcher::SketchObject", "Sketch032")
body.addObject(sketch33)
sketch33.AttachmentSupport = (doc.XY_Plane, [""])
sketch33.MapMode = "FlatFace"
sketch33.AttachmentOffset = App.Placement(V(0, 0, 453.5), App.Rotation())
sketch33.addGeometry(Part.Circle(V(0, -44, 0), V(0, 0, 1), 36), False)
sketch33.addConstraint([
    Sketcher.Constraint("PointOnObject", 0, 3, -2),
    Sketcher.Constraint("Diameter", 0, 72.0),
    Sketcher.Constraint("DistanceY", 0, 3, -1, 1, 44.0),
])
pad32 = doc.addObject("PartDesign::Pad", "Pad031")
body.addObject(pad32)
pad32.Profile = sketch33
pad32.Length = 2

sketch34 = doc.addObject("Sketcher::SketchObject", "Sketch033")
body.addObject(sketch34)
sketch34.AttachmentSupport = (doc.XY_Plane, [""])
sketch34.MapMode = "FlatFace"
sketch34.AttachmentOffset = App.Placement(V(0, 0, 455.5), App.Rotation())
sketch34.addGeometry([
    Part.LineSegment(V(-65, 47, 0), V(-35, -52, 0)),
    Part.ArcOfCircle(Part.Circle(V(0, -44, 0), V(0, 0, 1), 36), math.radians(-167), math.radians(-16)),
    Part.LineSegment(V(35, -54, 0), V(65, 47, 0)),
    Part.ArcOfCircle(Part.Circle(V(0, 0, 0), V(0, 0, 1), 80), math.radians(36), math.radians(144)),
], False)
sketch34.addConstraint([
    Sketcher.Constraint("Coincident", 0, 2, 1, 1),
    Sketcher.Constraint("Tangent", 1, 2, 2, 1),
    Sketcher.Constraint("Coincident", 2, 2, 3, 1),
    Sketcher.Constraint("Coincident", 3, 2, 0, 1),
    Sketcher.Constraint("Coincident", 3, 3, -1, 1),
    Sketcher.Constraint("PointOnObject", 1, 3, -2),
    Sketcher.Constraint("Horizontal", 2, 2, 3, 2),
    Sketcher.Constraint("Radius", 1, 36.0),
    Sketcher.Constraint("Radius", 3, 80.0),
    Sketcher.Constraint("DistanceY", 1, 3, -1, 1, 44.0),
    Sketcher.Constraint("Angle", 2, Q("73.5 deg")),
    Sketcher.Constraint("DistanceX", 0, 2, -1, 1, 35.103878),
])
pad33 = doc.addObject("PartDesign::Pad", "Pad032")
body.addObject(pad33)
pad33.Profile = sketch34
pad33.Length = 15.5

sketch35 = doc.addObject("Sketcher::SketchObject", "Sketch034")
body.addObject(sketch35)
sketch35.AttachmentSupport = (doc.XY_Plane, [""])
sketch35.MapMode = "FlatFace"
sketch35.AttachmentOffset = App.Placement(V(0, 0, 471), App.Rotation())
sketch35.addGeometry(Part.Circle(V(0, 0, 0), V(0, 0, 1), 39), False)
sketch35.addConstraint([
    Sketcher.Constraint("Coincident", 0, 3, -1, 1),
    Sketcher.Constraint("Diameter", 0, 78.0),
])
pad34 = doc.addObject("PartDesign::Pad", "Pad033")
body.addObject(pad34)
pad34.Profile = sketch35
pad34.Length = 2

sketch36 = doc.addObject("Sketcher::SketchObject", "Sketch035")
body.addObject(sketch36)
sketch36.AttachmentSupport = (doc.XY_Plane, [""])
sketch36.MapMode = "FlatFace"
sketch36.AttachmentOffset = App.Placement(V(0, 0, 473), App.Rotation())
sketch36.addGeometry(Part.Circle(V(0, 0, 0), V(0, 0, 1), 32), False)
sketch36.addConstraint([
    Sketcher.Constraint("Coincident", 0, 3, -1, 1),
    Sketcher.Constraint("Diameter", 0, 64.0),
])
pad35 = doc.addObject("PartDesign::Pad", "Pad034")
body.addObject(pad35)
pad35.Profile = sketch36
pad35.Length = 36

sketch37 = doc.addObject("Sketcher::SketchObject", "Sketch036")
body.addObject(sketch37)
sketch37.AttachmentSupport = (doc.XY_Plane, [""])
sketch37.MapMode = "FlatFace"
sketch37.AttachmentOffset = App.Placement(V(0, 0, 509), App.Rotation())
sketch37.addGeometry(Part.Circle(V(0, 0, 0), V(0, 0, 1), 16), False)
sketch37.addConstraint([
    Sketcher.Constraint("Coincident", 0, 3, -1, 1),
    Sketcher.Constraint("Diameter", 0, 32.0),
])
pad36 = doc.addObject("PartDesign::Pad", "Pad035")
body.addObject(pad36)
pad36.Profile = sketch37
pad36.Length = 110

doc.recompute()
